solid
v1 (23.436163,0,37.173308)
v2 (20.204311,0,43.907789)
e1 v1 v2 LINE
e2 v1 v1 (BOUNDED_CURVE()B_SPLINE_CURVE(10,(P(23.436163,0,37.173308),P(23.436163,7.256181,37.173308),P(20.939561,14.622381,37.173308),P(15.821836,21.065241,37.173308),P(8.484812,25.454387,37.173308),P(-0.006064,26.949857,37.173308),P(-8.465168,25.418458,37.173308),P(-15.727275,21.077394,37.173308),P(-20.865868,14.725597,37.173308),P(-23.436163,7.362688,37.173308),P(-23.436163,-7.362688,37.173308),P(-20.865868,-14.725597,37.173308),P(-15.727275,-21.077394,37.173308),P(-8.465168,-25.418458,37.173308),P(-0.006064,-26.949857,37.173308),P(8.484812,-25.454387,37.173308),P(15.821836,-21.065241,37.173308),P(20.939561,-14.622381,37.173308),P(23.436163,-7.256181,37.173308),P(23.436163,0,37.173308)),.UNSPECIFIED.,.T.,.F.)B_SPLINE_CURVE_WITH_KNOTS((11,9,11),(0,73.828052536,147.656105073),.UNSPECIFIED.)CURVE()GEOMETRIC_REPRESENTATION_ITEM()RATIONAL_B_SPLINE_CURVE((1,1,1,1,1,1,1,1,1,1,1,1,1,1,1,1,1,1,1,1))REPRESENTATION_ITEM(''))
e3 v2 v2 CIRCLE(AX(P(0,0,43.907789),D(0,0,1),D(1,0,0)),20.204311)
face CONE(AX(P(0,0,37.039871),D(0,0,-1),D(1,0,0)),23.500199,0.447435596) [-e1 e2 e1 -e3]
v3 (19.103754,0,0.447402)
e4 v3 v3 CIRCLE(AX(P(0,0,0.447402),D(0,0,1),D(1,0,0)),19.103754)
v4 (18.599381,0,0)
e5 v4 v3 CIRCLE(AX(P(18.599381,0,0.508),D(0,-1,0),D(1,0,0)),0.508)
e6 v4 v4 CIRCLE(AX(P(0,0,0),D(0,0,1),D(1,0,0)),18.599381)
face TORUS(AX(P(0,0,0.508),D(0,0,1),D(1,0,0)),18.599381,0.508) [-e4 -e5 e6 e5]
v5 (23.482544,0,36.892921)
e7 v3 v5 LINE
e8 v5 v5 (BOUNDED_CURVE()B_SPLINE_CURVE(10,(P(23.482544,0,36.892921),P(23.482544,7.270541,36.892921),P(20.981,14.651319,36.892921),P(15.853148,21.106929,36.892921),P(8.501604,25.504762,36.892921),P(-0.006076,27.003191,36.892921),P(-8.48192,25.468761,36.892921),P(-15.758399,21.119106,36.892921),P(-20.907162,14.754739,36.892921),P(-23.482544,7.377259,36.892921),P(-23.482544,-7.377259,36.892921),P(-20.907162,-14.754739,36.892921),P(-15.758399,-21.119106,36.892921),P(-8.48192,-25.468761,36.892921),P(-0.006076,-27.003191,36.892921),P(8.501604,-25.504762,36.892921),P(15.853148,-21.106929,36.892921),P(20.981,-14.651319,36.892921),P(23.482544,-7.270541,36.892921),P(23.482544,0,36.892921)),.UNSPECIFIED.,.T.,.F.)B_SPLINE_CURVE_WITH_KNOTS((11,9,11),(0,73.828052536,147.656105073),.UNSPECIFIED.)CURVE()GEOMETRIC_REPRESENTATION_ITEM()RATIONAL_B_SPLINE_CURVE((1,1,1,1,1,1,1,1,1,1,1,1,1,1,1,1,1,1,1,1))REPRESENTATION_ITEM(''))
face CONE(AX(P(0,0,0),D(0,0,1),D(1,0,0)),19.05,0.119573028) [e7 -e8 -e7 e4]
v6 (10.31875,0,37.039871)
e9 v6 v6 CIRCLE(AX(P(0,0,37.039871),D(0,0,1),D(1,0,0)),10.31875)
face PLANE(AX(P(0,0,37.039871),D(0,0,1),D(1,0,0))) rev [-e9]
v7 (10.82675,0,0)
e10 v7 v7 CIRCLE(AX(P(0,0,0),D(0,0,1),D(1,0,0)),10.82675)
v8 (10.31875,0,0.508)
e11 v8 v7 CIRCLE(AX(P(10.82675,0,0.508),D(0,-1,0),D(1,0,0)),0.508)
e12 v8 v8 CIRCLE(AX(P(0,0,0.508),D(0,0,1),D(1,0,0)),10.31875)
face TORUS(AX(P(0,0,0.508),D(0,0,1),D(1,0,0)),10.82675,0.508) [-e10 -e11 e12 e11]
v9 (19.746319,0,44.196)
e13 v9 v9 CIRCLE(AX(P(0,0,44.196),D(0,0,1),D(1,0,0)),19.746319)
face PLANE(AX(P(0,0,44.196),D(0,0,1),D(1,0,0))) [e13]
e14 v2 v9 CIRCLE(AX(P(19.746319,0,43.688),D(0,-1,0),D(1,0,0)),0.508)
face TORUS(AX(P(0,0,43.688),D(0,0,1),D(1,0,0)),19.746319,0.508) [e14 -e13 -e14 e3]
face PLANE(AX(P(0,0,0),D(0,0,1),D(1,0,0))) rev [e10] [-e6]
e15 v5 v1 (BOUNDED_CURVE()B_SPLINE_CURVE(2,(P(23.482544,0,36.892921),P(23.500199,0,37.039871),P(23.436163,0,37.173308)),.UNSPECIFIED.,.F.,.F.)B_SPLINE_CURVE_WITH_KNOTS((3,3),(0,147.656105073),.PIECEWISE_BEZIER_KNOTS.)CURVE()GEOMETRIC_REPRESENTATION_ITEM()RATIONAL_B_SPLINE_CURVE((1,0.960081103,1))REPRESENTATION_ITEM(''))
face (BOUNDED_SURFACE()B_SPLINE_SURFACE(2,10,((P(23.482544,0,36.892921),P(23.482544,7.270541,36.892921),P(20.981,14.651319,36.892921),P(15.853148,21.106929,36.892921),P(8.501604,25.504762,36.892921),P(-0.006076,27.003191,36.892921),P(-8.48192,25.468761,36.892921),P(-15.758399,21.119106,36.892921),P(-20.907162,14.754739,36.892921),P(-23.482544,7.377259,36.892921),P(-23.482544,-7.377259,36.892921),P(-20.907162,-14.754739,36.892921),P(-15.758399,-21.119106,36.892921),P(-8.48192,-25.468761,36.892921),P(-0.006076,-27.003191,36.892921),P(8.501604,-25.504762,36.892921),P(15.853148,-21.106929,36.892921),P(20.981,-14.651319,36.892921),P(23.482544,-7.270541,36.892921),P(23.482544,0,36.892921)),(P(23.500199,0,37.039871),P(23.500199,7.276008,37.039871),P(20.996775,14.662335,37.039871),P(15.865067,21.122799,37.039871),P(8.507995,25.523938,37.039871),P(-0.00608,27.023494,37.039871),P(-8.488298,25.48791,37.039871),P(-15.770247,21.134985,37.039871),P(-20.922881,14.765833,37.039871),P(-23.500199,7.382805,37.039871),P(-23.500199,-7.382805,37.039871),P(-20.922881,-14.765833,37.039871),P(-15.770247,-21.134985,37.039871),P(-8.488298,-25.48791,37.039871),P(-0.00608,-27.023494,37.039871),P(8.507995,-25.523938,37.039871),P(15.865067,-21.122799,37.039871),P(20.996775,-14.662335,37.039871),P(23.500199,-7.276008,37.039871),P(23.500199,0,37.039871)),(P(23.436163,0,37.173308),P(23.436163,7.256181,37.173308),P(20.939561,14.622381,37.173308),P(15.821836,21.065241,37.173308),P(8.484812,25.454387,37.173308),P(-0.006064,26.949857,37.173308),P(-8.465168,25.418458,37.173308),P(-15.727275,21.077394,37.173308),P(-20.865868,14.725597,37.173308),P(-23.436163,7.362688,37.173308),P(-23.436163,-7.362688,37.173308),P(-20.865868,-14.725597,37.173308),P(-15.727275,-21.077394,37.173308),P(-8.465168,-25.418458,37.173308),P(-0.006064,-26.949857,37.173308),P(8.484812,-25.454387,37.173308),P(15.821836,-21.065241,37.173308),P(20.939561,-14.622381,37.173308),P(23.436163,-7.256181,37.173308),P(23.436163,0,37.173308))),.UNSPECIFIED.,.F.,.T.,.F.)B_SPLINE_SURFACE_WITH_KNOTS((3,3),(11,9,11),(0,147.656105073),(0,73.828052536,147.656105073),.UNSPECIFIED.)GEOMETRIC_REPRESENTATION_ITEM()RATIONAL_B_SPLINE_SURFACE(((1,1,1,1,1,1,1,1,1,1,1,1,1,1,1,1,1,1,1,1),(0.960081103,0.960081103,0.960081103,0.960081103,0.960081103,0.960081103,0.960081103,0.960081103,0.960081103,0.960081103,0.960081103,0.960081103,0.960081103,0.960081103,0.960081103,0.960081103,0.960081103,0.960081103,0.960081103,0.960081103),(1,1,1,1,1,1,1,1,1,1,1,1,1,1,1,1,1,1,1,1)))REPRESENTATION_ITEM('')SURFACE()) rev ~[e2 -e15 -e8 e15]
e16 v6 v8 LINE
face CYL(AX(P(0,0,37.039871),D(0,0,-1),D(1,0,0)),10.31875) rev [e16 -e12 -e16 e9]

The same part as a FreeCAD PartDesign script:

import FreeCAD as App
import Part
import Sketcher
Q = App.Units.Quantity


def edges_at(feature, points):
    """Names of the edges that pass closest to the given points."""
    edges = feature.Shape.Edges
    near = lambda p: min(range(len(edges)), key=lambda i: edges[i].distToShape(Part.Vertex(*p))[0])
    return sorted({f"Edge{near(p) + 1}" for p in points})

doc = App.newDocument("Part")
body = doc.addObject("PartDesign::Body", "Body")

# Sketch on XZ plane
sketch1 = body.newObject("Sketcher::SketchObject", "Sketch")
sketch1.AttachmentSupport = (doc.getObject("XZ_Plane"), [""])
sketch1.MapMode = "FlatFace"
sketch1.addGeometry(Part.LineSegment(App.Vector(10.31875, 37.039871, 0), App.Vector(10.31875, 0, 0)), False)
sketch1.addGeometry(Part.LineSegment(App.Vector(10.31875, 0, 0), App.Vector(19.05, 0, 0)), False)
sketch1.addGeometry(Part.LineSegment(App.Vector(19.05, 0, 0), App.Vector(23.500199, 37.039871, 0)), False)
sketch1.addGeometry(Part.LineSegment(App.Vector(23.500199, 37.039871, 0), App.Vector(20.066, 44.196, 0)), False)
sketch1.addGeometry(Part.LineSegment(App.Vector(20.066, 44.196, 0), App.Vector(0, 44.196, 0)), False)
sketch1.addGeometry(Part.LineSegment(App.Vector(0, 44.196, 0), App.Vector(0, 37.039871, 0)), False)
sketch1.addGeometry(Part.LineSegment(App.Vector(0, 37.039871, 0), App.Vector(10.31875, 37.039871, 0)), False)
sketch1.addConstraint(Sketcher.Constraint("Coincident", 0, 2, 1, 1))
sketch1.addConstraint(Sketcher.Constraint("Coincident", 1, 2, 2, 1))
sketch1.addConstraint(Sketcher.Constraint("Coincident", 2, 2, 3, 1))
sketch1.addConstraint(Sketcher.Constraint("Coincident", 3, 2, 4, 1))
sketch1.addConstraint(Sketcher.Constraint("Coincident", 4, 2, 5, 1))
sketch1.addConstraint(Sketcher.Constraint("Coincident", 5, 2, 6, 1))
sketch1.addConstraint(Sketcher.Constraint("Coincident", 6, 2, 0, 1))
sketch1.addConstraint(Sketcher.Constraint("Vertical", 0))
sketch1.addConstraint(Sketcher.Constraint("Horizontal", 1))
sketch1.addConstraint(Sketcher.Constraint("Horizontal", 4))
sketch1.addConstraint(Sketcher.Constraint("Vertical", 5))
sketch1.addConstraint(Sketcher.Constraint("Horizontal", 6))
sketch1.addConstraint(Sketcher.Constraint("PointOnObject", 0, 2, -1))
sketch1.addConstraint(Sketcher.Constraint("PointOnObject", 4, 2, -2))
sketch1.addConstraint(Sketcher.Constraint("Horizontal", 2, 2, 5, 2))
sketch1.addConstraint(Sketcher.Constraint("DistanceX", 4, 2, 4, 1, Q("0.79 in")))
sketch1.addConstraint(Sketcher.Constraint("DistanceX", 1, 1, 1, 2, Q("0.34375 in")))
sketch1.addConstraint(Sketcher.Constraint("DistanceX", 6, 1, 6, 2, Q("0.40625 in")))
sketch1.addConstraint(Sketcher.Constraint("DistanceY", -1, 1, 3, 2, Q("1.74 in")))
sketch1.addConstraint(Sketcher.Constraint("Distance", 2, Q("1.46875 in")))
sketch1.addConstraint(Sketcher.Constraint("Distance", 3, Q("0.3125 in")))
revolution = body.newObject("PartDesign::Revolution", "Revolution")
revolution.Profile = sketch1
revolution.ReferenceAxis = (sketch1, ["V_Axis"])
revolution.Angle = 360
doc.recompute()

fillet = body.newObject("PartDesign::Fillet", "Fillet")
fillet.Base = (revolution, edges_at(revolution, [
    (-20.066, 0, 44.196),
    (-19.05, 0, 0),
    (-23.5, 0, 37.04),
    (-10.319, 0, 0),
]))
fillet.Radius = Q("0.02 in")

doc.recompute()
